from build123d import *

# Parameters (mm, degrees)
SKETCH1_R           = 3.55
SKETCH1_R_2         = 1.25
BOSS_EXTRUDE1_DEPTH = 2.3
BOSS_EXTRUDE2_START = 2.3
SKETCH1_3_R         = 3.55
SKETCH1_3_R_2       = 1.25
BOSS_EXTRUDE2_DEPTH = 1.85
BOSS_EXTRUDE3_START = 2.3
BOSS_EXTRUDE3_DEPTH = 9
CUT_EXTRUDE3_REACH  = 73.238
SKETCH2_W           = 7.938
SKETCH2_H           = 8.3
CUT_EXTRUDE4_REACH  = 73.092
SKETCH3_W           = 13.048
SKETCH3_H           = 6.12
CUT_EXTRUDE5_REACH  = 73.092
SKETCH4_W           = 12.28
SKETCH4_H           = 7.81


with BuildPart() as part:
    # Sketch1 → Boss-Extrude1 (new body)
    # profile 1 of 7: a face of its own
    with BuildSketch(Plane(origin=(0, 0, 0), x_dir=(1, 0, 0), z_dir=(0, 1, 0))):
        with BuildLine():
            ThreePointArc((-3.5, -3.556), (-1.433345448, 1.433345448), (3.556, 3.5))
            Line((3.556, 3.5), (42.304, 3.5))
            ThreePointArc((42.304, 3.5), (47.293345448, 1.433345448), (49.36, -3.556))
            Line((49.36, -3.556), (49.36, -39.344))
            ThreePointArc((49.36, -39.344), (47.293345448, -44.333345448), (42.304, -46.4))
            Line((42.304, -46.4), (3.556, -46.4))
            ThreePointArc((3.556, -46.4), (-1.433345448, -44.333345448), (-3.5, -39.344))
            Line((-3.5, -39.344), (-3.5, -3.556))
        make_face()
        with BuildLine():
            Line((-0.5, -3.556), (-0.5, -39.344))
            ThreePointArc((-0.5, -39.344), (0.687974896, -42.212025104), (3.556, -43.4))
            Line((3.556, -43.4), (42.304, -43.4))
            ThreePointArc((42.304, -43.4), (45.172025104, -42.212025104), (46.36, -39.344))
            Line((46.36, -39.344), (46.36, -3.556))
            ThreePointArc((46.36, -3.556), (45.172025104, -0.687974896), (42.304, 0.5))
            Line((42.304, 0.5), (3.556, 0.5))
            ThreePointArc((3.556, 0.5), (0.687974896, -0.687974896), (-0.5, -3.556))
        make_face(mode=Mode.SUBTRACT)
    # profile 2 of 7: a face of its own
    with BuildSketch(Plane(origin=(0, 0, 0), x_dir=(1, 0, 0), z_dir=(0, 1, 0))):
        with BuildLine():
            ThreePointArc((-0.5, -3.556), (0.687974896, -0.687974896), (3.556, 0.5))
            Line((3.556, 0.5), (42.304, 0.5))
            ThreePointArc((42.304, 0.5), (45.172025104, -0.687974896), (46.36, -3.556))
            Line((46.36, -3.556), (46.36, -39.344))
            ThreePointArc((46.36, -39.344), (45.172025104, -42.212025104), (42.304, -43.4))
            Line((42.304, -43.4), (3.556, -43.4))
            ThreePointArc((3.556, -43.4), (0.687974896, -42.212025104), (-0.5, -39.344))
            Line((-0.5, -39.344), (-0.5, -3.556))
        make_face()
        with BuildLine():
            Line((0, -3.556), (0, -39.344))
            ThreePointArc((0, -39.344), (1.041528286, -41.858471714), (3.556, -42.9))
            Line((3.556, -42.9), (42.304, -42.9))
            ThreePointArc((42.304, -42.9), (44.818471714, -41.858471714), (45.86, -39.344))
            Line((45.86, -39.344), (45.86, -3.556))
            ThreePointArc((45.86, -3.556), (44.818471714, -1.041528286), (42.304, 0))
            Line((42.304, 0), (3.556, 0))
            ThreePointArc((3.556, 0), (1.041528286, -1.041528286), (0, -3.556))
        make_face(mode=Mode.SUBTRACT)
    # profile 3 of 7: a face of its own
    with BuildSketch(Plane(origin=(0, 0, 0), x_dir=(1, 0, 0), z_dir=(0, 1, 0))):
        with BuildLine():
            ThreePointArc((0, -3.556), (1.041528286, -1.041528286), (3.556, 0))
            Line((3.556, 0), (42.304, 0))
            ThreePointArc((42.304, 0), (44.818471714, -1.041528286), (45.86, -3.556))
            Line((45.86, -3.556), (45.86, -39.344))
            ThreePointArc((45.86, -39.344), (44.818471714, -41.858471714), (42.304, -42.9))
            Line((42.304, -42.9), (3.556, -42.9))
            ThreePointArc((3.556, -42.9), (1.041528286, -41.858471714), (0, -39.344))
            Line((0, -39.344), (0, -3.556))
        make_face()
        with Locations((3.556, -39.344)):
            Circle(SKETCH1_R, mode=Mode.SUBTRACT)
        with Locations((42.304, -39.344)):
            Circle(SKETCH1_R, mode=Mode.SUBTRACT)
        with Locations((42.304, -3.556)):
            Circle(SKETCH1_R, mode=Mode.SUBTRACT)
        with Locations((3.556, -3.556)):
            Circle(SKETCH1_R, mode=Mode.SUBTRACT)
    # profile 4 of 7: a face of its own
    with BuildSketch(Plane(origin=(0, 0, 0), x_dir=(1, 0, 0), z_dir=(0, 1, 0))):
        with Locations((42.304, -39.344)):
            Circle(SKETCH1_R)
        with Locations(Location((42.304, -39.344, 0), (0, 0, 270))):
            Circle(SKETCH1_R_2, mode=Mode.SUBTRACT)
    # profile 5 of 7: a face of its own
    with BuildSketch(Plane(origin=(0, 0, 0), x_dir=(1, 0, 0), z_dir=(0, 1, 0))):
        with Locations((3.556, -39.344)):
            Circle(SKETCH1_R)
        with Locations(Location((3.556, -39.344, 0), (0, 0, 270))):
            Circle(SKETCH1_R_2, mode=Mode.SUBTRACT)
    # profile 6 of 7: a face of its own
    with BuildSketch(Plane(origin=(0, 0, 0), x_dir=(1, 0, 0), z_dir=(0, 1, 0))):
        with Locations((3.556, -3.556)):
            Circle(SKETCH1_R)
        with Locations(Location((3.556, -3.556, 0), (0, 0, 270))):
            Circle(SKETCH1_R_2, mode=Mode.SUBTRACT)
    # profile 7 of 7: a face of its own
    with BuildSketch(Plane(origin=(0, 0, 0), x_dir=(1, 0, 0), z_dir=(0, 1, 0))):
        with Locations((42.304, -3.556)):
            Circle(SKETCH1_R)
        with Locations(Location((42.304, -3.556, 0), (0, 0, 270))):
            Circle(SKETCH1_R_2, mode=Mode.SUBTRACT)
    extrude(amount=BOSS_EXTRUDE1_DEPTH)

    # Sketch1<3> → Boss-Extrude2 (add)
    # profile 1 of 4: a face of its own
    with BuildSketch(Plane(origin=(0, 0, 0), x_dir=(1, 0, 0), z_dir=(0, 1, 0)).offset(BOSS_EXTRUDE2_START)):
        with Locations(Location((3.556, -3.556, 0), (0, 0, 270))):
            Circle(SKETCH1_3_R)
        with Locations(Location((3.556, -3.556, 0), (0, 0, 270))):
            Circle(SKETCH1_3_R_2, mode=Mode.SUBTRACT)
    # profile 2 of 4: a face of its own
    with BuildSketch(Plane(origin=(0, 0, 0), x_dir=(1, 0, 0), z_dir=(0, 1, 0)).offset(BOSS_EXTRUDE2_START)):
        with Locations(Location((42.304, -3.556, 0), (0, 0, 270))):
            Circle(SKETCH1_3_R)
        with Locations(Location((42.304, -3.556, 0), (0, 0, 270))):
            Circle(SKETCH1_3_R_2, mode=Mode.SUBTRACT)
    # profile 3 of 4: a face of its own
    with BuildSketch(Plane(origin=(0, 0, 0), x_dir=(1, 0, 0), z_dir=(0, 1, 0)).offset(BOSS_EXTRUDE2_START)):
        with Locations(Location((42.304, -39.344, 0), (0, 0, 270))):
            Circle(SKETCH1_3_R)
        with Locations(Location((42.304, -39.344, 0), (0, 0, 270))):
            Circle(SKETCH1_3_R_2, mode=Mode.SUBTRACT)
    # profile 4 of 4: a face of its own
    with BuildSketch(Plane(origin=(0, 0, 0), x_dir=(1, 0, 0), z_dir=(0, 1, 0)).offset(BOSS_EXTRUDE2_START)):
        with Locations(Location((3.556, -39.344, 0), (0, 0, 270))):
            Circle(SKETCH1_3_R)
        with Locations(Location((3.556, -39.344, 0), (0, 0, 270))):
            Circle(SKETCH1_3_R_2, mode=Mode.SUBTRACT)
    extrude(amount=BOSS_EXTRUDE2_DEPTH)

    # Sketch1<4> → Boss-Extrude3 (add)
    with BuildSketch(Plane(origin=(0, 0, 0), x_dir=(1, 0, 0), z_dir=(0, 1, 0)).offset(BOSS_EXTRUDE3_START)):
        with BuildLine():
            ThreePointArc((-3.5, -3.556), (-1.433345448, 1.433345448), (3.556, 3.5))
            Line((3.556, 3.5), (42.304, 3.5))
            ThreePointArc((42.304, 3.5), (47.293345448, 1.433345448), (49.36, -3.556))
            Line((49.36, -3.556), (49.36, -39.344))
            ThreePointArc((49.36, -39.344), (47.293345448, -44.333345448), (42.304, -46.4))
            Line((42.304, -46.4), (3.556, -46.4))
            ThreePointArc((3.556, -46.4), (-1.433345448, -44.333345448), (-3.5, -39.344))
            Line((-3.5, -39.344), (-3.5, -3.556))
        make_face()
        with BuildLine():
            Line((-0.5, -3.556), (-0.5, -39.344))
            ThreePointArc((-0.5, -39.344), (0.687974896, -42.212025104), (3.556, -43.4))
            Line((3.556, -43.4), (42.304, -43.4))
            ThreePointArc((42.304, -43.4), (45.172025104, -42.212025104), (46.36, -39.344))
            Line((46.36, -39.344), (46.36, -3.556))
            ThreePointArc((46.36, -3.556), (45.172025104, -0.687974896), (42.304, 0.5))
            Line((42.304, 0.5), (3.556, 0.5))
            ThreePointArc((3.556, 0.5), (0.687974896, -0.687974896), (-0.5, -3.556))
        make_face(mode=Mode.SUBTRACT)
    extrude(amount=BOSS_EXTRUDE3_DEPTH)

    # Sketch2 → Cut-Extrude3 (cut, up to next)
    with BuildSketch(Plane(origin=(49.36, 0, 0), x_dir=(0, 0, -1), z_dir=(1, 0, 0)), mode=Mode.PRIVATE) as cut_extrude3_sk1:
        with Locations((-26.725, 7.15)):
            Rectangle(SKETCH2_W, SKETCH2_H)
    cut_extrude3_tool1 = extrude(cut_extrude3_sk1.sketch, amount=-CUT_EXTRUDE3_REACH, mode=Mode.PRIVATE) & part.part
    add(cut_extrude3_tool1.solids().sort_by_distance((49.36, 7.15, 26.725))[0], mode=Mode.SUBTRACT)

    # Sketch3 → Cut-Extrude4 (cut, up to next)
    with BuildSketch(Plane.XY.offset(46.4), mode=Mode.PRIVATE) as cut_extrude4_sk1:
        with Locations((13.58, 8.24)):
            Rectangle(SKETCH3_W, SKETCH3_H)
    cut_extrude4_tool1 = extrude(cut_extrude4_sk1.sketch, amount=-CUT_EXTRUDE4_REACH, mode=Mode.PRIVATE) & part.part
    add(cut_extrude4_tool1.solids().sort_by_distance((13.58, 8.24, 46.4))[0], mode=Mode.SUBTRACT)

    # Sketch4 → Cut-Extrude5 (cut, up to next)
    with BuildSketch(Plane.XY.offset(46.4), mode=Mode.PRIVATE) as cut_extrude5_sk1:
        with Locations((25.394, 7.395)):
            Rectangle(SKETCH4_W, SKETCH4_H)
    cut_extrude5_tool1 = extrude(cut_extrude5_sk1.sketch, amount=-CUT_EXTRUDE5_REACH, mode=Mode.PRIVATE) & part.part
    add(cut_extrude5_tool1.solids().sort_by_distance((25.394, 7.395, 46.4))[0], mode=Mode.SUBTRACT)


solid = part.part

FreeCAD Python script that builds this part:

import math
import FreeCAD as App
import Part
import Sketcher


def add_polygon(sketch, points):
    """Adds a closed chain of lines whose ends are joined by coincident constraints."""
    first, n = sketch.GeometryCount, len(points)
    for a, b in zip(points, points[1:] + points[:1]):
        sketch.addGeometry(Part.LineSegment(App.Vector(*a, 0), App.Vector(*b, 0)), False)
    for i in range(n):
        sketch.addConstraint(Sketcher.Constraint("Coincident", first + i, 2, first + (i + 1) % n, 1))

doc = App.newDocument("Part")
body = doc.addObject("PartDesign::Body", "Body")

sketch1 = body.newObject("Sketcher::SketchObject", "Sketch")
sketch1.AttachmentSupport = (doc.getObject("XZ_Plane"), [""])
sketch1.MapMode = "FlatFace"
sketch1.addGeometry(Part.ArcOfCircle(Part.Circle(App.Vector(3.6, 3.6, 0), App.Vector(0, 0, 1), 7.1), math.radians(180), math.radians(270)), False)
sketch1.addGeometry(Part.LineSegment(App.Vector(-3.5, 3.6, 0), App.Vector(-3.5, 39.3, 0)), False)
sketch1.addGeometry(Part.ArcOfCircle(Part.Circle(App.Vector(3.6, 39.3, 0), App.Vector(0, 0, 1), 7.1), math.radians(90), math.radians(180)), False)
sketch1.addGeometry(Part.LineSegment(App.Vector(3.6, 46.4, 0), App.Vector(42.3, 46.4, 0)), False)
sketch1.addGeometry(Part.ArcOfCircle(Part.Circle(App.Vector(42.3, 39.3, 0), App.Vector(0, 0, 1), 7.1), math.radians(0), math.radians(90)), False)
sketch1.addGeometry(Part.LineSegment(App.Vector(49.4, 39.3, 0), App.Vector(49.4, 3.6, 0)), False)
sketch1.addGeometry(Part.ArcOfCircle(Part.Circle(App.Vector(42.3, 3.6, 0), App.Vector(0, 0, 1), 7.1), math.radians(-90), math.radians(0)), False)
sketch1.addGeometry(Part.LineSegment(App.Vector(42.3, -3.5, 0), App.Vector(3.6, -3.5, 0)), False)
sketch1.addGeometry(Part.Circle(App.Vector(42.3, 3.6, 0), App.Vector(0, 0, 1), 1.2), False)
sketch1.addGeometry(Part.Circle(App.Vector(3.6, 3.6, 0), App.Vector(0, 0, 1), 1.2), False)
sketch1.addGeometry(Part.Circle(App.Vector(42.3, 39.3, 0), App.Vector(0, 0, 1), 1.2), False)
sketch1.addGeometry(Part.Circle(App.Vector(3.6, 39.3, 0), App.Vector(0, 0, 1), 1.2), False)
sketch1.addConstraint(Sketcher.Constraint("Tangent", 0, 1, 1, 1))
sketch1.addConstraint(Sketcher.Constraint("Tangent", 1, 2, 2, 2))
sketch1.addConstraint(Sketcher.Constraint("Tangent", 2, 1, 3, 1))
sketch1.addConstraint(Sketcher.Constraint("Tangent", 3, 2, 4, 2))
sketch1.addConstraint(Sketcher.Constraint("Tangent", 4, 1, 5, 1))
sketch1.addConstraint(Sketcher.Constraint("Tangent", 5, 2, 6, 2))
sketch1.addConstraint(Sketcher.Constraint("Tangent", 6, 1, 7, 1))
sketch1.addConstraint(Sketcher.Constraint("Tangent", 7, 2, 0, 2))
sketch1.addConstraint(Sketcher.Constraint("Vertical", 1))
sketch1.addConstraint(Sketcher.Constraint("Horizontal", 3))
sketch1.addConstraint(Sketcher.Constraint("Vertical", 5))
sketch1.addConstraint(Sketcher.Constraint("Horizontal", 7))
sketch1.addConstraint(Sketcher.Constraint("Coincident", 8, 3, 6, 3))
sketch1.addConstraint(Sketcher.Constraint("Coincident", 9, 3, 0, 3))
sketch1.addConstraint(Sketcher.Constraint("Coincident", 10, 3, 4, 3))
sketch1.addConstraint(Sketcher.Constraint("Coincident", 11, 3, 2, 3))
sketch1.addConstraint(Sketcher.Constraint("Equal", 0, 2))
sketch1.addConstraint(Sketcher.Constraint("Equal", 2, 4))
sketch1.addConstraint(Sketcher.Constraint("Equal", 4, 6))
sketch1.addConstraint(Sketcher.Constraint("Equal", 8, 9))
sketch1.addConstraint(Sketcher.Constraint("Equal", 9, 10))
sketch1.addConstraint(Sketcher.Constraint("Equal", 10, 11))
sketch1.addConstraint(Sketcher.Constraint("Diameter", 8, 2.5))
sketch1.addConstraint(Sketcher.Constraint("Radius", 0, 7.056))
sketch1.addConstraint(Sketcher.Constraint("DistanceX", 0, 1, -1, 1, 3.5))
sketch1.addConstraint(Sketcher.Constraint("DistanceY", -1, 1, 2, 1, 46.4))
sketch1.addConstraint(Sketcher.Constraint("DistanceY", 6, 1, -1, 1, 3.5))
sketch1.addConstraint(Sketcher.Constraint("DistanceX", 3, 1, 3, 2, 38.748))
pad1 = body.newObject("PartDesign::Pad", "Pad")
pad1.Profile = sketch1
pad1.Length = 2.3
pad1.Reversed = True

sketch2 = body.newObject("Sketcher::SketchObject", "Sketch001")
sketch2.AttachmentSupport = (doc.getObject("XZ_Plane"), [""])
sketch2.MapMode = "FlatFace"
sketch2.AttachmentOffset = App.Placement(App.Vector(0, 0, -2.3), App.Rotation())
sketch2.addGeometry(Part.Circle(App.Vector(3.6, 3.6, 0), App.Vector(0, 0, 1), 3.5), False)
sketch2.addGeometry(Part.Circle(App.Vector(3.6, 3.6, 0), App.Vector(0, 0, 1), 1.2), False)
sketch2.addGeometry(Part.Circle(App.Vector(42.3, 3.6, 0), App.Vector(0, 0, 1), 3.5), False)
sketch2.addGeometry(Part.Circle(App.Vector(42.3, 3.6, 0), App.Vector(0, 0, 1), 1.2), False)
sketch2.addGeometry(Part.Circle(App.Vector(42.3, 39.3, 0), App.Vector(0, 0, 1), 3.5), False)
sketch2.addGeometry(Part.Circle(App.Vector(42.3, 39.3, 0), App.Vector(0, 0, 1), 1.2), False)
sketch2.addGeometry(Part.Circle(App.Vector(3.6, 39.3, 0), App.Vector(0, 0, 1), 3.5), False)
sketch2.addGeometry(Part.Circle(App.Vector(3.6, 39.3, 0), App.Vector(0, 0, 1), 1.2), False)
sketch2.addConstraint(Sketcher.Constraint("Coincident", 1, 3, 0, 3))
sketch2.addConstraint(Sketcher.Constraint("Coincident", 3, 3, 2, 3))
sketch2.addConstraint(Sketcher.Constraint("Coincident", 5, 3, 4, 3))
sketch2.addConstraint(Sketcher.Constraint("Coincident", 7, 3, 6, 3))
sketch2.addConstraint(Sketcher.Constraint("Equal", 0, 2))
sketch2.addConstraint(Sketcher.Constraint("Equal", 1, 3))
sketch2.addConstraint(Sketcher.Constraint("Equal", 2, 4))
sketch2.addConstraint(Sketcher.Constraint("Equal", 3, 5))
sketch2.addConstraint(Sketcher.Constraint("Equal", 4, 6))
sketch2.addConstraint(Sketcher.Constraint("Equal", 5, 7))
sketch2.addConstraint(Sketcher.Constraint("Horizontal", 1, 3, 2, 3))
sketch2.addConstraint(Sketcher.Constraint("Horizontal", 5, 3, 6, 3))
sketch2.addConstraint(Sketcher.Constraint("Vertical", 3, 3, 4, 3))
sketch2.addConstraint(Sketcher.Constraint("Vertical", 1, 3, 6, 3))
sketch2.addConstraint(Sketcher.Constraint("Diameter", 0, 7.1))
sketch2.addConstraint(Sketcher.Constraint("Diameter", 1, 2.5))
sketch2.addConstraint(Sketcher.Constraint("DistanceX", -1, 1, 0, 3, 3.556))
sketch2.addConstraint(Sketcher.Constraint("DistanceY", -1, 1, 0, 3, 3.556))
sketch2.addConstraint(Sketcher.Constraint("DistanceX", -1, 1, 2, 3, 42.304))
sketch2.addConstraint(Sketcher.Constraint("DistanceY", -1, 1, 4, 3, 39.344))
pad2 = body.newObject("PartDesign::Pad", "Pad001")
pad2.Profile = sketch2
pad2.Length = 1.85
pad2.Reversed = True

sketch3 = body.newObject("Sketcher::SketchObject", "Sketch002")
sketch3.AttachmentSupport = (doc.getObject("XZ_Plane"), [""])
sketch3.MapMode = "FlatFace"
sketch3.AttachmentOffset = App.Placement(App.Vector(0, 0, -2.3), App.Rotation())
sketch3.addGeometry(Part.ArcOfCircle(Part.Circle(App.Vector(3.6, 3.6, 0), App.Vector(0, 0, 1), 7.1), math.radians(180), math.radians(270)), False)
sketch3.addGeometry(Part.LineSegment(App.Vector(-3.5, 3.6, 0), App.Vector(-3.5, 39.3, 0)), False)
sketch3.addGeometry(Part.ArcOfCircle(Part.Circle(App.Vector(3.6, 39.3, 0), App.Vector(0, 0, 1), 7.1), math.radians(90), math.radians(180)), False)
sketch3.addGeometry(Part.LineSegment(App.Vector(3.6, 46.4, 0), App.Vector(42.3, 46.4, 0)), False)
sketch3.addGeometry(Part.ArcOfCircle(Part.Circle(App.Vector(42.3, 39.3, 0), App.Vector(0, 0, 1), 7.1), math.radians(0), math.radians(90)), False)
sketch3.addGeometry(Part.LineSegment(App.Vector(49.4, 39.3, 0), App.Vector(49.4, 3.6, 0)), False)
sketch3.addGeometry(Part.ArcOfCircle(Part.Circle(App.Vector(42.3, 3.6, 0), App.Vector(0, 0, 1), 7.1), math.radians(-90), math.radians(0)), False)
sketch3.addGeometry(Part.LineSegment(App.Vector(42.3, -3.5, 0), App.Vector(3.6, -3.5, 0)), False)
sketch3.addGeometry(Part.ArcOfCircle(Part.Circle(App.Vector(3.6, 3.6, 0), App.Vector(0, 0, 1), 4.1), math.radians(-180), math.radians(-90)), False)
sketch3.addGeometry(Part.LineSegment(App.Vector(3.6, -0.5, 0), App.Vector(42.3, -0.5, 0)), False)
sketch3.addGeometry(Part.ArcOfCircle(Part.Circle(App.Vector(42.3, 3.6, 0), App.Vector(0, 0, 1), 4.1), math.radians(-90), math.radians(0)), False)
sketch3.addGeometry(Part.LineSegment(App.Vector(46.4, 3.6, 0), App.Vector(46.4, 39.3, 0)), False)
sketch3.addGeometry(Part.ArcOfCircle(Part.Circle(App.Vector(42.3, 39.3, 0), App.Vector(0, 0, 1), 4.1), math.radians(0), math.radians(90)), False)
sketch3.addGeometry(Part.LineSegment(App.Vector(42.3, 43.4, 0), App.Vector(3.6, 43.4, 0)), False)
sketch3.addGeometry(Part.ArcOfCircle(Part.Circle(App.Vector(3.6, 39.3, 0), App.Vector(0, 0, 1), 4.1), math.radians(90), math.radians(180)), False)
sketch3.addGeometry(Part.LineSegment(App.Vector(-0.5, 39.3, 0), App.Vector(-0.5, 3.6, 0)), False)
sketch3.addConstraint(Sketcher.Constraint("Tangent", 0, 1, 1, 1))
sketch3.addConstraint(Sketcher.Constraint("Tangent", 1, 2, 2, 2))
sketch3.addConstraint(Sketcher.Constraint("Tangent", 2, 1, 3, 1))
sketch3.addConstraint(Sketcher.Constraint("Tangent", 3, 2, 4, 2))
sketch3.addConstraint(Sketcher.Constraint("Tangent", 4, 1, 5, 1))
sketch3.addConstraint(Sketcher.Constraint("Tangent", 5, 2, 6, 2))
sketch3.addConstraint(Sketcher.Constraint("Tangent", 6, 1, 7, 1))
sketch3.addConstraint(Sketcher.Constraint("Tangent", 7, 2, 0, 2))
sketch3.addConstraint(Sketcher.Constraint("Tangent", 8, 2, 9, 1))
sketch3.addConstraint(Sketcher.Constraint("Tangent", 9, 2, 10, 1))
sketch3.addConstraint(Sketcher.Constraint("Tangent", 10, 2, 11, 1))
sketch3.addConstraint(Sketcher.Constraint("Tangent", 11, 2, 12, 1))
sketch3.addConstraint(Sketcher.Constraint("Tangent", 12, 2, 13, 1))
sketch3.addConstraint(Sketcher.Constraint("Tangent", 13, 2, 14, 1))
sketch3.addConstraint(Sketcher.Constraint("Tangent", 14, 2, 15, 1))
sketch3.addConstraint(Sketcher.Constraint("Tangent", 15, 2, 8, 1))
sketch3.addConstraint(Sketcher.Constraint("Vertical", 1))
sketch3.addConstraint(Sketcher.Constraint("Horizontal", 3))
sketch3.addConstraint(Sketcher.Constraint("Vertical", 5))
sketch3.addConstraint(Sketcher.Constraint("Horizontal", 7))
sketch3.addConstraint(Sketcher.Constraint("Horizontal", 9))
sketch3.addConstraint(Sketcher.Constraint("Vertical", 11))
sketch3.addConstraint(Sketcher.Constraint("Horizontal", 13))
sketch3.addConstraint(Sketcher.Constraint("Vertical", 15))
sketch3.addConstraint(Sketcher.Constraint("Coincident", 8, 3, 0, 3))
sketch3.addConstraint(Sketcher.Constraint("Coincident", 10, 3, 6, 3))
sketch3.addConstraint(Sketcher.Constraint("Coincident", 12, 3, 4, 3))
sketch3.addConstraint(Sketcher.Constraint("Equal", 0, 2))
sketch3.addConstraint(Sketcher.Constraint("Equal", 2, 4))
sketch3.addConstraint(Sketcher.Constraint("Equal", 4, 6))
sketch3.addConstraint(Sketcher.Constraint("Equal", 12, 14))
sketch3.addConstraint(Sketcher.Constraint("Radius", 0, 7.056))
sketch3.addConstraint(Sketcher.Constraint("Radius", 8, 4.056))
sketch3.addConstraint(Sketcher.Constraint("DistanceX", 0, 1, -1, 1, 3.5))
sketch3.addConstraint(Sketcher.Constraint("DistanceY", -1, 1, 2, 1, 46.4))
sketch3.addConstraint(Sketcher.Constraint("DistanceY", 6, 1, -1, 1, 3.5))
sketch3.addConstraint(Sketcher.Constraint("DistanceX", 3, 1, 3, 2, 38.748))
pad3 = body.newObject("PartDesign::Pad", "Pad002")
pad3.Profile = sketch3
pad3.Length = 9
pad3.Reversed = True

sketch4 = body.newObject("Sketcher::SketchObject", "Sketch003")
sketch4.AttachmentSupport = (doc.getObject("YZ_Plane"), [""])
sketch4.MapMode = "FlatFace"
sketch4.AttachmentOffset = App.Placement(App.Vector(0, 0, 49.36), App.Rotation())
add_polygon(sketch4, [(11, 31), (3, 31), (3, 23), (11, 23)])
sketch4.addConstraint(Sketcher.Constraint("Horizontal", 0))
sketch4.addConstraint(Sketcher.Constraint("Vertical", 1))
sketch4.addConstraint(Sketcher.Constraint("Horizontal", 2))
sketch4.addConstraint(Sketcher.Constraint("Vertical", 3))
sketch4.addConstraint(Sketcher.Constraint("DistanceX", 0, 2, 0, 1, 8.3))
sketch4.addConstraint(Sketcher.Constraint("DistanceX", -1, 1, 0, 2, 3.0))
sketch4.addConstraint(Sketcher.Constraint("DistanceY", 1, 2, 1, 1, 7.938))
sketch4.addConstraint(Sketcher.Constraint("DistanceY", -1, 1, 0, 2, 30.694))
pocket1 = body.newObject("PartDesign::Pocket", "Pocket")
pocket1.Profile = sketch4
pocket1.Type = "UpToFirst"

sketch5 = body.newObject("Sketcher::SketchObject", "Sketch004")
sketch5.AttachmentSupport = (doc.getObject("XY_Plane"), [""])
sketch5.MapMode = "FlatFace"
sketch5.AttachmentOffset = App.Placement(App.Vector(0, 0, 46.4), App.Rotation())
add_polygon(sketch5, [(7, 11), (7, 5), (20, 5), (20, 11)])
sketch5.addConstraint(Sketcher.Constraint("Vertical", 0))
sketch5.addConstraint(Sketcher.Constraint("Horizontal", 1))
sketch5.addConstraint(Sketcher.Constraint("Vertical", 2))
sketch5.addConstraint(Sketcher.Constraint("Horizontal", 3))
sketch5.addConstraint(Sketcher.Constraint("DistanceY", 0, 2, 0, 1, 6.12))
sketch5.addConstraint(Sketcher.Constraint("DistanceY", -1, 1, 2, 2, 11.3))
sketch5.addConstraint(Sketcher.Constraint("DistanceX", 1, 1, 1, 2, 13.048))
sketch5.addConstraint(Sketcher.Constraint("DistanceX", -1, 1, 0, 2, 7.056))
pocket2 = body.newObject("PartDesign::Pocket", "Pocket001")
pocket2.Profile = sketch5
pocket2.Type = "UpToFirst"

sketch6 = body.newObject("Sketcher::SketchObject", "Sketch005")
sketch6.AttachmentSupport = (doc.getObject("XY_Plane"), [""])
sketch6.MapMode = "FlatFace"
sketch6.AttachmentOffset = App.Placement(App.Vector(0, 0, 46.4), App.Rotation())
add_polygon(sketch6, [(19, 11), (19, 3), (32, 3), (32, 11)])
sketch6.addConstraint(Sketcher.Constraint("Vertical", 0))
sketch6.addConstraint(Sketcher.Constraint("Horizontal", 1))
sketch6.addConstraint(Sketcher.Constraint("Vertical", 2))
sketch6.addConstraint(Sketcher.Constraint("Horizontal", 3))
sketch6.addConstraint(Sketcher.Constraint("DistanceX", 1, 1, 1, 2, 12.28))
sketch6.addConstraint(Sketcher.Constraint("DistanceY", 0, 2, 0, 1, 7.81))
sketch6.addConstraint(Sketcher.Constraint("DistanceY", -1, 1, 2, 2, 11.3))
sketch6.addConstraint(Sketcher.Constraint("DistanceX", -1, 1, 0, 2, 19.254))
pocket3 = body.newObject("PartDesign::Pocket", "Pocket002")
pocket3.Profile = sketch6
pocket3.Type = "UpToFirst"

doc.recompute()
